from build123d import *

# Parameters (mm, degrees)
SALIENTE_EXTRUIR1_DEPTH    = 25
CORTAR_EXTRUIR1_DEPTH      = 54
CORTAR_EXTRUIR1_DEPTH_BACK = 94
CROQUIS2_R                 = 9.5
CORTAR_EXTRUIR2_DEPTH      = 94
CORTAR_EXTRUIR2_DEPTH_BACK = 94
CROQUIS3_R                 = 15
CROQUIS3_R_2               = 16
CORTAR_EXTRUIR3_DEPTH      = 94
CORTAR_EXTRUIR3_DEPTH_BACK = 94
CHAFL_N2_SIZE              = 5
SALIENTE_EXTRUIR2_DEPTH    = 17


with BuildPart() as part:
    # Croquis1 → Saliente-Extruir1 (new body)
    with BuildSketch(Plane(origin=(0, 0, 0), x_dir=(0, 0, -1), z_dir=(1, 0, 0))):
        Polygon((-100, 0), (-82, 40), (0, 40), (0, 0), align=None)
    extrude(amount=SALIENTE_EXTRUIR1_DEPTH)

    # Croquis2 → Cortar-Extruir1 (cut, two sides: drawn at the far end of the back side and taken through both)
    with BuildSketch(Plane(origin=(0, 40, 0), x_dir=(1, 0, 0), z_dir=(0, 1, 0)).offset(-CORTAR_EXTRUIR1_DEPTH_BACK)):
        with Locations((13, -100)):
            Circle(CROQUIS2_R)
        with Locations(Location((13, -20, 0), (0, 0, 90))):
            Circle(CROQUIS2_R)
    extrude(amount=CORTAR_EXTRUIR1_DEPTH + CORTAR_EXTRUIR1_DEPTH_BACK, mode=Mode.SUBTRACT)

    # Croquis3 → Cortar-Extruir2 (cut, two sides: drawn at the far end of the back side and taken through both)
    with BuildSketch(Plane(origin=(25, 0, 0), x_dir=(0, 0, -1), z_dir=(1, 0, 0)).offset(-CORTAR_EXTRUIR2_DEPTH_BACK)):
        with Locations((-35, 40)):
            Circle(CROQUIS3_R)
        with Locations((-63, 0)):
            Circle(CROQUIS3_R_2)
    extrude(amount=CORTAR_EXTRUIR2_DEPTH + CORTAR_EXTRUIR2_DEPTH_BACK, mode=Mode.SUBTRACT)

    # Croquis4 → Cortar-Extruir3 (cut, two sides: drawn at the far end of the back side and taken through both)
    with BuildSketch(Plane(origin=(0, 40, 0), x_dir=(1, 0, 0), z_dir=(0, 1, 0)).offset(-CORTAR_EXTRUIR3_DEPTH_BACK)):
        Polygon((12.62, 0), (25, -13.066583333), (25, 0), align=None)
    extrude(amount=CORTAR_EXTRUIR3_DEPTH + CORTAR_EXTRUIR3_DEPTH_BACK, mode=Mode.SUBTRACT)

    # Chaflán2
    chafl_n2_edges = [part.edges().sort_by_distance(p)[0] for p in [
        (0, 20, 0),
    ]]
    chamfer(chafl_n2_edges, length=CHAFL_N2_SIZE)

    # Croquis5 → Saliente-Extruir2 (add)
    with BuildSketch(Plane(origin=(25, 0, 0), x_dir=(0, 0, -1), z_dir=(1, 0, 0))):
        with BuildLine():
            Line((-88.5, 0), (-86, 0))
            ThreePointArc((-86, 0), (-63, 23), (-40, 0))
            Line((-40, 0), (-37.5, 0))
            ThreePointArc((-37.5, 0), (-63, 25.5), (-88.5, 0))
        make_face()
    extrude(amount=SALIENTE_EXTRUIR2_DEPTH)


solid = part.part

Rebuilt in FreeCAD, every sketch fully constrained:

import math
import FreeCAD as App
import Part
import Sketcher

V = App.Vector
Q = App.Units.Quantity


def edges_at(feature, points):
    """Names of the edges that pass closest to the given points."""
    edges = feature.Shape.Edges
    near = lambda p: min(range(len(edges)), key=lambda i: edges[i].distToShape(Part.Vertex(*p))[0])
    return sorted({f"Edge{near(p) + 1}" for p in points})


def add_polygon(sketch, points):
    """Adds a closed chain of lines whose ends are joined by coincident constraints."""
    first, n = sketch.GeometryCount, len(points)
    for a, b in zip(points, points[1:] + points[:1]):
        sketch.addGeometry(Part.LineSegment(App.Vector(*a, 0), App.Vector(*b, 0)), False)
    for i in range(n):
        sketch.addConstraint(Sketcher.Constraint("Coincident", first + i, 2, first + (i + 1) % n, 1))

doc = App.newDocument("Part")
params = doc.addObject("Spreadsheet::Sheet", "Params")
for row, (alias, value) in enumerate([
    ("sketch1_width", "40 mm"),
    ("sketch1_height", "100 mm"),
    ("sketch1_height2", "82 mm"),
    ("pad1_length", "25 mm"),
    ("sketch2_diameter", "19 mm"),
    ("sketch3_diameter", "30 mm"),
    ("sketch3_diameter2", "32 mm"),
    ("sketch4_length", "18 mm"),
    ("sketch4_width", "12.38 mm"),
    ("chamfer_size", "5 mm"),
    ("sketch5_radius", "23 mm"),
    ("sketch5_radius2", "25.5 mm"),
    ("pad2_length", "17 mm"),
], start=1):
    params.set(f"A{row}", alias)
    params.set(f"B{row}", "=" + value)
    params.setAlias(f"B{row}", alias)

body = doc.addObject("PartDesign::Body", "Body")

sketch1 = body.newObject("Sketcher::SketchObject", "Sketch")
sketch1.AttachmentSupport = (doc.getObject("YZ_Plane"), [""])
sketch1.MapMode = "FlatFace"
add_polygon(sketch1, [(40, 82), (0, 100), (0, 0), (40, 0)])
sketch1.addConstraint([
    Sketcher.Constraint("Vertical", 1),
    Sketcher.Constraint("Horizontal", 2),
    Sketcher.Constraint("Vertical", 3),
    Sketcher.Constraint("Coincident", 1, 2, -1, 1),
    Sketcher.Constraint("DistanceX", 2, 1, 2, 2, Q("40 mm")),
    Sketcher.Constraint("DistanceY", 1, 2, 1, 1, Q("100 mm")),
    Sketcher.Constraint("DistanceY", 3, 1, 3, 2, Q("82 mm")),
])
sketch1.setExpression("Constraints[8]", "Params.sketch1_width")
sketch1.setExpression("Constraints[9]", "Params.sketch1_height")
sketch1.setExpression("Constraints[10]", "Params.sketch1_height2")
pad1 = body.newObject("PartDesign::Pad", "Pad")
pad1.Profile = sketch1
pad1.setExpression("Length", "Params.pad1_length")

sketch2 = body.newObject("Sketcher::SketchObject", "Sketch001")
sketch2.AttachmentSupport = (doc.getObject("XZ_Plane"), [""])
sketch2.MapMode = "FlatFace"
sketch2.AttachmentOffset = App.Placement(V(0, 0, -40), App.Rotation())
sketch2.addGeometry([
    Part.Circle(V(13, 100, 0), V(0, 0, 1), 10),
    Part.Circle(V(13, 20, 0), V(0, 0, 1), 10),
], False)
sketch2.addConstraint([
    Sketcher.Constraint("Equal", 0, 1),
    Sketcher.Constraint("Vertical", 0, 3, 1, 3),
    Sketcher.Constraint("Diameter", 0, Q("19 mm")),
    Sketcher.Constraint("DistanceX", -1, 1, 0, 3, Q("13 mm")),
    Sketcher.Constraint("DistanceY", -1, 1, 0, 3, Q("100 mm")),
    Sketcher.Constraint("DistanceY", -1, 1, 1, 3, Q("20 mm")),
])
sketch2.setExpression("Constraints[2]", "Params.sketch2_diameter")
pocket1 = body.newObject("PartDesign::Pocket", "Pocket")
pocket1.Profile = sketch2
pocket1.Type = "ThroughAll"
pocket1.Midplane = True

sketch3 = body.newObject("Sketcher::SketchObject", "Sketch002")
sketch3.AttachmentSupport = (doc.getObject("YZ_Plane"), [""])
sketch3.MapMode = "FlatFace"
sketch3.AttachmentOffset = App.Placement(V(0, 0, 25), App.Rotation())
sketch3.addGeometry([
    Part.Circle(V(40, 35, 0), V(0, 0, 1), 15),
    Part.Circle(V(0, 63, 0), V(0, 0, 1), 16),
], False)
sketch3.addConstraint([
    Sketcher.Constraint("PointOnObject", 1, 3, -2),
    Sketcher.Constraint("Diameter", 0, Q("30 mm")),
    Sketcher.Constraint("Diameter", 1, Q("32 mm")),
    Sketcher.Constraint("DistanceX", -1, 1, 0, 3, Q("40 mm")),
    Sketcher.Constraint("DistanceY", -1, 1, 0, 3, Q("35 mm")),
    Sketcher.Constraint("DistanceY", -1, 1, 1, 3, Q("63 mm")),
])
sketch3.setExpression("Constraints[1]", "Params.sketch3_diameter")
sketch3.setExpression("Constraints[2]", "Params.sketch3_diameter2")
pocket2 = body.newObject("PartDesign::Pocket", "Pocket001")
pocket2.Profile = sketch3
pocket2.Type = "ThroughAll"
pocket2.Midplane = True

sketch4 = body.newObject("Sketcher::SketchObject", "Sketch003")
sketch4.AttachmentSupport = (doc.getObject("XZ_Plane"), [""])
sketch4.MapMode = "FlatFace"
sketch4.AttachmentOffset = App.Placement(V(0, 0, -40), App.Rotation())
add_polygon(sketch4, [(13, 0), (25, 13), (25, 0)])
sketch4.addConstraint([
    Sketcher.Constraint("Vertical", 1),
    Sketcher.Constraint("Horizontal", 2),
    Sketcher.Constraint("PointOnObject", 1, 2, -1),
    Sketcher.Constraint("Distance", 0, Q("18 mm")),
    Sketcher.Constraint("DistanceX", -1, 1, 0, 2, Q("25 mm")),
    Sketcher.Constraint("DistanceX", 2, 2, 2, 1, Q("12.38 mm")),
])
sketch4.setExpression("Constraints[6]", "Params.sketch4_length")
sketch4.setExpression("Constraints[8]", "Params.sketch4_width")
pocket3 = body.newObject("PartDesign::Pocket", "Pocket002")
pocket3.Profile = sketch4
pocket3.Type = "ThroughAll"
pocket3.Midplane = True
doc.recompute()

chamfer = body.newObject("PartDesign::Chamfer", "Chamfer")
chamfer.Base = (pocket3, edges_at(pocket3, [(0, 20, 0)]))
chamfer.setExpression("Size", "Params.chamfer_size")

sketch5 = body.newObject("Sketcher::SketchObject", "Sketch004")
sketch5.AttachmentSupport = (doc.getObject("YZ_Plane"), [""])
sketch5.MapMode = "FlatFace"
sketch5.AttachmentOffset = App.Placement(V(0, 0, 25), App.Rotation())
sketch5.addGeometry([
    Part.LineSegment(V(0, 88.5, 0), V(0, 86, 0)),
    Part.ArcOfCircle(Part.Circle(V(0, 63, 0), V(0, 0, 1), 23), math.radians(-90), math.radians(90)),
    Part.LineSegment(V(0, 40, 0), V(0, 37.5, 0)),
    Part.ArcOfCircle(Part.Circle(V(0, 63, 0), V(0, 0, 1), 25.5), math.radians(-90), math.radians(90)),
], False)
sketch5.addConstraint([
    Sketcher.Constraint("Coincident", 0, 2, 1, 2),
    Sketcher.Constraint("Coincident", 1, 1, 2, 1),
    Sketcher.Constraint("Coincident", 2, 2, 3, 1),
    Sketcher.Constraint("Coincident", 3, 2, 0, 1),
    Sketcher.Constraint("Vertical", 0),
    Sketcher.Constraint("Vertical", 2),
    Sketcher.Constraint("Coincident", 3, 3, 1, 3),
    Sketcher.Constraint("PointOnObject", 1, 3, -2),
    Sketcher.Constraint("PointOnObject", 0, 2, -2),
    Sketcher.Constraint("PointOnObject", 1, 1, -2),
    Sketcher.Constraint("Radius", 1, Q("23 mm")),
    Sketcher.Constraint("Radius", 3, Q("25.5 mm")),
    Sketcher.Constraint("DistanceY", -1, 1, 1, 3, Q("63 mm")),
])
sketch5.setExpression("Constraints[10]", "Params.sketch5_radius")
sketch5.setExpression("Constraints[11]", "Params.sketch5_radius2")
pad2 = body.newObject("PartDesign::Pad", "Pad001")
pad2.Profile = sketch5
pad2.setExpression("Length", "Params.pad2_length")

doc.recompute()
